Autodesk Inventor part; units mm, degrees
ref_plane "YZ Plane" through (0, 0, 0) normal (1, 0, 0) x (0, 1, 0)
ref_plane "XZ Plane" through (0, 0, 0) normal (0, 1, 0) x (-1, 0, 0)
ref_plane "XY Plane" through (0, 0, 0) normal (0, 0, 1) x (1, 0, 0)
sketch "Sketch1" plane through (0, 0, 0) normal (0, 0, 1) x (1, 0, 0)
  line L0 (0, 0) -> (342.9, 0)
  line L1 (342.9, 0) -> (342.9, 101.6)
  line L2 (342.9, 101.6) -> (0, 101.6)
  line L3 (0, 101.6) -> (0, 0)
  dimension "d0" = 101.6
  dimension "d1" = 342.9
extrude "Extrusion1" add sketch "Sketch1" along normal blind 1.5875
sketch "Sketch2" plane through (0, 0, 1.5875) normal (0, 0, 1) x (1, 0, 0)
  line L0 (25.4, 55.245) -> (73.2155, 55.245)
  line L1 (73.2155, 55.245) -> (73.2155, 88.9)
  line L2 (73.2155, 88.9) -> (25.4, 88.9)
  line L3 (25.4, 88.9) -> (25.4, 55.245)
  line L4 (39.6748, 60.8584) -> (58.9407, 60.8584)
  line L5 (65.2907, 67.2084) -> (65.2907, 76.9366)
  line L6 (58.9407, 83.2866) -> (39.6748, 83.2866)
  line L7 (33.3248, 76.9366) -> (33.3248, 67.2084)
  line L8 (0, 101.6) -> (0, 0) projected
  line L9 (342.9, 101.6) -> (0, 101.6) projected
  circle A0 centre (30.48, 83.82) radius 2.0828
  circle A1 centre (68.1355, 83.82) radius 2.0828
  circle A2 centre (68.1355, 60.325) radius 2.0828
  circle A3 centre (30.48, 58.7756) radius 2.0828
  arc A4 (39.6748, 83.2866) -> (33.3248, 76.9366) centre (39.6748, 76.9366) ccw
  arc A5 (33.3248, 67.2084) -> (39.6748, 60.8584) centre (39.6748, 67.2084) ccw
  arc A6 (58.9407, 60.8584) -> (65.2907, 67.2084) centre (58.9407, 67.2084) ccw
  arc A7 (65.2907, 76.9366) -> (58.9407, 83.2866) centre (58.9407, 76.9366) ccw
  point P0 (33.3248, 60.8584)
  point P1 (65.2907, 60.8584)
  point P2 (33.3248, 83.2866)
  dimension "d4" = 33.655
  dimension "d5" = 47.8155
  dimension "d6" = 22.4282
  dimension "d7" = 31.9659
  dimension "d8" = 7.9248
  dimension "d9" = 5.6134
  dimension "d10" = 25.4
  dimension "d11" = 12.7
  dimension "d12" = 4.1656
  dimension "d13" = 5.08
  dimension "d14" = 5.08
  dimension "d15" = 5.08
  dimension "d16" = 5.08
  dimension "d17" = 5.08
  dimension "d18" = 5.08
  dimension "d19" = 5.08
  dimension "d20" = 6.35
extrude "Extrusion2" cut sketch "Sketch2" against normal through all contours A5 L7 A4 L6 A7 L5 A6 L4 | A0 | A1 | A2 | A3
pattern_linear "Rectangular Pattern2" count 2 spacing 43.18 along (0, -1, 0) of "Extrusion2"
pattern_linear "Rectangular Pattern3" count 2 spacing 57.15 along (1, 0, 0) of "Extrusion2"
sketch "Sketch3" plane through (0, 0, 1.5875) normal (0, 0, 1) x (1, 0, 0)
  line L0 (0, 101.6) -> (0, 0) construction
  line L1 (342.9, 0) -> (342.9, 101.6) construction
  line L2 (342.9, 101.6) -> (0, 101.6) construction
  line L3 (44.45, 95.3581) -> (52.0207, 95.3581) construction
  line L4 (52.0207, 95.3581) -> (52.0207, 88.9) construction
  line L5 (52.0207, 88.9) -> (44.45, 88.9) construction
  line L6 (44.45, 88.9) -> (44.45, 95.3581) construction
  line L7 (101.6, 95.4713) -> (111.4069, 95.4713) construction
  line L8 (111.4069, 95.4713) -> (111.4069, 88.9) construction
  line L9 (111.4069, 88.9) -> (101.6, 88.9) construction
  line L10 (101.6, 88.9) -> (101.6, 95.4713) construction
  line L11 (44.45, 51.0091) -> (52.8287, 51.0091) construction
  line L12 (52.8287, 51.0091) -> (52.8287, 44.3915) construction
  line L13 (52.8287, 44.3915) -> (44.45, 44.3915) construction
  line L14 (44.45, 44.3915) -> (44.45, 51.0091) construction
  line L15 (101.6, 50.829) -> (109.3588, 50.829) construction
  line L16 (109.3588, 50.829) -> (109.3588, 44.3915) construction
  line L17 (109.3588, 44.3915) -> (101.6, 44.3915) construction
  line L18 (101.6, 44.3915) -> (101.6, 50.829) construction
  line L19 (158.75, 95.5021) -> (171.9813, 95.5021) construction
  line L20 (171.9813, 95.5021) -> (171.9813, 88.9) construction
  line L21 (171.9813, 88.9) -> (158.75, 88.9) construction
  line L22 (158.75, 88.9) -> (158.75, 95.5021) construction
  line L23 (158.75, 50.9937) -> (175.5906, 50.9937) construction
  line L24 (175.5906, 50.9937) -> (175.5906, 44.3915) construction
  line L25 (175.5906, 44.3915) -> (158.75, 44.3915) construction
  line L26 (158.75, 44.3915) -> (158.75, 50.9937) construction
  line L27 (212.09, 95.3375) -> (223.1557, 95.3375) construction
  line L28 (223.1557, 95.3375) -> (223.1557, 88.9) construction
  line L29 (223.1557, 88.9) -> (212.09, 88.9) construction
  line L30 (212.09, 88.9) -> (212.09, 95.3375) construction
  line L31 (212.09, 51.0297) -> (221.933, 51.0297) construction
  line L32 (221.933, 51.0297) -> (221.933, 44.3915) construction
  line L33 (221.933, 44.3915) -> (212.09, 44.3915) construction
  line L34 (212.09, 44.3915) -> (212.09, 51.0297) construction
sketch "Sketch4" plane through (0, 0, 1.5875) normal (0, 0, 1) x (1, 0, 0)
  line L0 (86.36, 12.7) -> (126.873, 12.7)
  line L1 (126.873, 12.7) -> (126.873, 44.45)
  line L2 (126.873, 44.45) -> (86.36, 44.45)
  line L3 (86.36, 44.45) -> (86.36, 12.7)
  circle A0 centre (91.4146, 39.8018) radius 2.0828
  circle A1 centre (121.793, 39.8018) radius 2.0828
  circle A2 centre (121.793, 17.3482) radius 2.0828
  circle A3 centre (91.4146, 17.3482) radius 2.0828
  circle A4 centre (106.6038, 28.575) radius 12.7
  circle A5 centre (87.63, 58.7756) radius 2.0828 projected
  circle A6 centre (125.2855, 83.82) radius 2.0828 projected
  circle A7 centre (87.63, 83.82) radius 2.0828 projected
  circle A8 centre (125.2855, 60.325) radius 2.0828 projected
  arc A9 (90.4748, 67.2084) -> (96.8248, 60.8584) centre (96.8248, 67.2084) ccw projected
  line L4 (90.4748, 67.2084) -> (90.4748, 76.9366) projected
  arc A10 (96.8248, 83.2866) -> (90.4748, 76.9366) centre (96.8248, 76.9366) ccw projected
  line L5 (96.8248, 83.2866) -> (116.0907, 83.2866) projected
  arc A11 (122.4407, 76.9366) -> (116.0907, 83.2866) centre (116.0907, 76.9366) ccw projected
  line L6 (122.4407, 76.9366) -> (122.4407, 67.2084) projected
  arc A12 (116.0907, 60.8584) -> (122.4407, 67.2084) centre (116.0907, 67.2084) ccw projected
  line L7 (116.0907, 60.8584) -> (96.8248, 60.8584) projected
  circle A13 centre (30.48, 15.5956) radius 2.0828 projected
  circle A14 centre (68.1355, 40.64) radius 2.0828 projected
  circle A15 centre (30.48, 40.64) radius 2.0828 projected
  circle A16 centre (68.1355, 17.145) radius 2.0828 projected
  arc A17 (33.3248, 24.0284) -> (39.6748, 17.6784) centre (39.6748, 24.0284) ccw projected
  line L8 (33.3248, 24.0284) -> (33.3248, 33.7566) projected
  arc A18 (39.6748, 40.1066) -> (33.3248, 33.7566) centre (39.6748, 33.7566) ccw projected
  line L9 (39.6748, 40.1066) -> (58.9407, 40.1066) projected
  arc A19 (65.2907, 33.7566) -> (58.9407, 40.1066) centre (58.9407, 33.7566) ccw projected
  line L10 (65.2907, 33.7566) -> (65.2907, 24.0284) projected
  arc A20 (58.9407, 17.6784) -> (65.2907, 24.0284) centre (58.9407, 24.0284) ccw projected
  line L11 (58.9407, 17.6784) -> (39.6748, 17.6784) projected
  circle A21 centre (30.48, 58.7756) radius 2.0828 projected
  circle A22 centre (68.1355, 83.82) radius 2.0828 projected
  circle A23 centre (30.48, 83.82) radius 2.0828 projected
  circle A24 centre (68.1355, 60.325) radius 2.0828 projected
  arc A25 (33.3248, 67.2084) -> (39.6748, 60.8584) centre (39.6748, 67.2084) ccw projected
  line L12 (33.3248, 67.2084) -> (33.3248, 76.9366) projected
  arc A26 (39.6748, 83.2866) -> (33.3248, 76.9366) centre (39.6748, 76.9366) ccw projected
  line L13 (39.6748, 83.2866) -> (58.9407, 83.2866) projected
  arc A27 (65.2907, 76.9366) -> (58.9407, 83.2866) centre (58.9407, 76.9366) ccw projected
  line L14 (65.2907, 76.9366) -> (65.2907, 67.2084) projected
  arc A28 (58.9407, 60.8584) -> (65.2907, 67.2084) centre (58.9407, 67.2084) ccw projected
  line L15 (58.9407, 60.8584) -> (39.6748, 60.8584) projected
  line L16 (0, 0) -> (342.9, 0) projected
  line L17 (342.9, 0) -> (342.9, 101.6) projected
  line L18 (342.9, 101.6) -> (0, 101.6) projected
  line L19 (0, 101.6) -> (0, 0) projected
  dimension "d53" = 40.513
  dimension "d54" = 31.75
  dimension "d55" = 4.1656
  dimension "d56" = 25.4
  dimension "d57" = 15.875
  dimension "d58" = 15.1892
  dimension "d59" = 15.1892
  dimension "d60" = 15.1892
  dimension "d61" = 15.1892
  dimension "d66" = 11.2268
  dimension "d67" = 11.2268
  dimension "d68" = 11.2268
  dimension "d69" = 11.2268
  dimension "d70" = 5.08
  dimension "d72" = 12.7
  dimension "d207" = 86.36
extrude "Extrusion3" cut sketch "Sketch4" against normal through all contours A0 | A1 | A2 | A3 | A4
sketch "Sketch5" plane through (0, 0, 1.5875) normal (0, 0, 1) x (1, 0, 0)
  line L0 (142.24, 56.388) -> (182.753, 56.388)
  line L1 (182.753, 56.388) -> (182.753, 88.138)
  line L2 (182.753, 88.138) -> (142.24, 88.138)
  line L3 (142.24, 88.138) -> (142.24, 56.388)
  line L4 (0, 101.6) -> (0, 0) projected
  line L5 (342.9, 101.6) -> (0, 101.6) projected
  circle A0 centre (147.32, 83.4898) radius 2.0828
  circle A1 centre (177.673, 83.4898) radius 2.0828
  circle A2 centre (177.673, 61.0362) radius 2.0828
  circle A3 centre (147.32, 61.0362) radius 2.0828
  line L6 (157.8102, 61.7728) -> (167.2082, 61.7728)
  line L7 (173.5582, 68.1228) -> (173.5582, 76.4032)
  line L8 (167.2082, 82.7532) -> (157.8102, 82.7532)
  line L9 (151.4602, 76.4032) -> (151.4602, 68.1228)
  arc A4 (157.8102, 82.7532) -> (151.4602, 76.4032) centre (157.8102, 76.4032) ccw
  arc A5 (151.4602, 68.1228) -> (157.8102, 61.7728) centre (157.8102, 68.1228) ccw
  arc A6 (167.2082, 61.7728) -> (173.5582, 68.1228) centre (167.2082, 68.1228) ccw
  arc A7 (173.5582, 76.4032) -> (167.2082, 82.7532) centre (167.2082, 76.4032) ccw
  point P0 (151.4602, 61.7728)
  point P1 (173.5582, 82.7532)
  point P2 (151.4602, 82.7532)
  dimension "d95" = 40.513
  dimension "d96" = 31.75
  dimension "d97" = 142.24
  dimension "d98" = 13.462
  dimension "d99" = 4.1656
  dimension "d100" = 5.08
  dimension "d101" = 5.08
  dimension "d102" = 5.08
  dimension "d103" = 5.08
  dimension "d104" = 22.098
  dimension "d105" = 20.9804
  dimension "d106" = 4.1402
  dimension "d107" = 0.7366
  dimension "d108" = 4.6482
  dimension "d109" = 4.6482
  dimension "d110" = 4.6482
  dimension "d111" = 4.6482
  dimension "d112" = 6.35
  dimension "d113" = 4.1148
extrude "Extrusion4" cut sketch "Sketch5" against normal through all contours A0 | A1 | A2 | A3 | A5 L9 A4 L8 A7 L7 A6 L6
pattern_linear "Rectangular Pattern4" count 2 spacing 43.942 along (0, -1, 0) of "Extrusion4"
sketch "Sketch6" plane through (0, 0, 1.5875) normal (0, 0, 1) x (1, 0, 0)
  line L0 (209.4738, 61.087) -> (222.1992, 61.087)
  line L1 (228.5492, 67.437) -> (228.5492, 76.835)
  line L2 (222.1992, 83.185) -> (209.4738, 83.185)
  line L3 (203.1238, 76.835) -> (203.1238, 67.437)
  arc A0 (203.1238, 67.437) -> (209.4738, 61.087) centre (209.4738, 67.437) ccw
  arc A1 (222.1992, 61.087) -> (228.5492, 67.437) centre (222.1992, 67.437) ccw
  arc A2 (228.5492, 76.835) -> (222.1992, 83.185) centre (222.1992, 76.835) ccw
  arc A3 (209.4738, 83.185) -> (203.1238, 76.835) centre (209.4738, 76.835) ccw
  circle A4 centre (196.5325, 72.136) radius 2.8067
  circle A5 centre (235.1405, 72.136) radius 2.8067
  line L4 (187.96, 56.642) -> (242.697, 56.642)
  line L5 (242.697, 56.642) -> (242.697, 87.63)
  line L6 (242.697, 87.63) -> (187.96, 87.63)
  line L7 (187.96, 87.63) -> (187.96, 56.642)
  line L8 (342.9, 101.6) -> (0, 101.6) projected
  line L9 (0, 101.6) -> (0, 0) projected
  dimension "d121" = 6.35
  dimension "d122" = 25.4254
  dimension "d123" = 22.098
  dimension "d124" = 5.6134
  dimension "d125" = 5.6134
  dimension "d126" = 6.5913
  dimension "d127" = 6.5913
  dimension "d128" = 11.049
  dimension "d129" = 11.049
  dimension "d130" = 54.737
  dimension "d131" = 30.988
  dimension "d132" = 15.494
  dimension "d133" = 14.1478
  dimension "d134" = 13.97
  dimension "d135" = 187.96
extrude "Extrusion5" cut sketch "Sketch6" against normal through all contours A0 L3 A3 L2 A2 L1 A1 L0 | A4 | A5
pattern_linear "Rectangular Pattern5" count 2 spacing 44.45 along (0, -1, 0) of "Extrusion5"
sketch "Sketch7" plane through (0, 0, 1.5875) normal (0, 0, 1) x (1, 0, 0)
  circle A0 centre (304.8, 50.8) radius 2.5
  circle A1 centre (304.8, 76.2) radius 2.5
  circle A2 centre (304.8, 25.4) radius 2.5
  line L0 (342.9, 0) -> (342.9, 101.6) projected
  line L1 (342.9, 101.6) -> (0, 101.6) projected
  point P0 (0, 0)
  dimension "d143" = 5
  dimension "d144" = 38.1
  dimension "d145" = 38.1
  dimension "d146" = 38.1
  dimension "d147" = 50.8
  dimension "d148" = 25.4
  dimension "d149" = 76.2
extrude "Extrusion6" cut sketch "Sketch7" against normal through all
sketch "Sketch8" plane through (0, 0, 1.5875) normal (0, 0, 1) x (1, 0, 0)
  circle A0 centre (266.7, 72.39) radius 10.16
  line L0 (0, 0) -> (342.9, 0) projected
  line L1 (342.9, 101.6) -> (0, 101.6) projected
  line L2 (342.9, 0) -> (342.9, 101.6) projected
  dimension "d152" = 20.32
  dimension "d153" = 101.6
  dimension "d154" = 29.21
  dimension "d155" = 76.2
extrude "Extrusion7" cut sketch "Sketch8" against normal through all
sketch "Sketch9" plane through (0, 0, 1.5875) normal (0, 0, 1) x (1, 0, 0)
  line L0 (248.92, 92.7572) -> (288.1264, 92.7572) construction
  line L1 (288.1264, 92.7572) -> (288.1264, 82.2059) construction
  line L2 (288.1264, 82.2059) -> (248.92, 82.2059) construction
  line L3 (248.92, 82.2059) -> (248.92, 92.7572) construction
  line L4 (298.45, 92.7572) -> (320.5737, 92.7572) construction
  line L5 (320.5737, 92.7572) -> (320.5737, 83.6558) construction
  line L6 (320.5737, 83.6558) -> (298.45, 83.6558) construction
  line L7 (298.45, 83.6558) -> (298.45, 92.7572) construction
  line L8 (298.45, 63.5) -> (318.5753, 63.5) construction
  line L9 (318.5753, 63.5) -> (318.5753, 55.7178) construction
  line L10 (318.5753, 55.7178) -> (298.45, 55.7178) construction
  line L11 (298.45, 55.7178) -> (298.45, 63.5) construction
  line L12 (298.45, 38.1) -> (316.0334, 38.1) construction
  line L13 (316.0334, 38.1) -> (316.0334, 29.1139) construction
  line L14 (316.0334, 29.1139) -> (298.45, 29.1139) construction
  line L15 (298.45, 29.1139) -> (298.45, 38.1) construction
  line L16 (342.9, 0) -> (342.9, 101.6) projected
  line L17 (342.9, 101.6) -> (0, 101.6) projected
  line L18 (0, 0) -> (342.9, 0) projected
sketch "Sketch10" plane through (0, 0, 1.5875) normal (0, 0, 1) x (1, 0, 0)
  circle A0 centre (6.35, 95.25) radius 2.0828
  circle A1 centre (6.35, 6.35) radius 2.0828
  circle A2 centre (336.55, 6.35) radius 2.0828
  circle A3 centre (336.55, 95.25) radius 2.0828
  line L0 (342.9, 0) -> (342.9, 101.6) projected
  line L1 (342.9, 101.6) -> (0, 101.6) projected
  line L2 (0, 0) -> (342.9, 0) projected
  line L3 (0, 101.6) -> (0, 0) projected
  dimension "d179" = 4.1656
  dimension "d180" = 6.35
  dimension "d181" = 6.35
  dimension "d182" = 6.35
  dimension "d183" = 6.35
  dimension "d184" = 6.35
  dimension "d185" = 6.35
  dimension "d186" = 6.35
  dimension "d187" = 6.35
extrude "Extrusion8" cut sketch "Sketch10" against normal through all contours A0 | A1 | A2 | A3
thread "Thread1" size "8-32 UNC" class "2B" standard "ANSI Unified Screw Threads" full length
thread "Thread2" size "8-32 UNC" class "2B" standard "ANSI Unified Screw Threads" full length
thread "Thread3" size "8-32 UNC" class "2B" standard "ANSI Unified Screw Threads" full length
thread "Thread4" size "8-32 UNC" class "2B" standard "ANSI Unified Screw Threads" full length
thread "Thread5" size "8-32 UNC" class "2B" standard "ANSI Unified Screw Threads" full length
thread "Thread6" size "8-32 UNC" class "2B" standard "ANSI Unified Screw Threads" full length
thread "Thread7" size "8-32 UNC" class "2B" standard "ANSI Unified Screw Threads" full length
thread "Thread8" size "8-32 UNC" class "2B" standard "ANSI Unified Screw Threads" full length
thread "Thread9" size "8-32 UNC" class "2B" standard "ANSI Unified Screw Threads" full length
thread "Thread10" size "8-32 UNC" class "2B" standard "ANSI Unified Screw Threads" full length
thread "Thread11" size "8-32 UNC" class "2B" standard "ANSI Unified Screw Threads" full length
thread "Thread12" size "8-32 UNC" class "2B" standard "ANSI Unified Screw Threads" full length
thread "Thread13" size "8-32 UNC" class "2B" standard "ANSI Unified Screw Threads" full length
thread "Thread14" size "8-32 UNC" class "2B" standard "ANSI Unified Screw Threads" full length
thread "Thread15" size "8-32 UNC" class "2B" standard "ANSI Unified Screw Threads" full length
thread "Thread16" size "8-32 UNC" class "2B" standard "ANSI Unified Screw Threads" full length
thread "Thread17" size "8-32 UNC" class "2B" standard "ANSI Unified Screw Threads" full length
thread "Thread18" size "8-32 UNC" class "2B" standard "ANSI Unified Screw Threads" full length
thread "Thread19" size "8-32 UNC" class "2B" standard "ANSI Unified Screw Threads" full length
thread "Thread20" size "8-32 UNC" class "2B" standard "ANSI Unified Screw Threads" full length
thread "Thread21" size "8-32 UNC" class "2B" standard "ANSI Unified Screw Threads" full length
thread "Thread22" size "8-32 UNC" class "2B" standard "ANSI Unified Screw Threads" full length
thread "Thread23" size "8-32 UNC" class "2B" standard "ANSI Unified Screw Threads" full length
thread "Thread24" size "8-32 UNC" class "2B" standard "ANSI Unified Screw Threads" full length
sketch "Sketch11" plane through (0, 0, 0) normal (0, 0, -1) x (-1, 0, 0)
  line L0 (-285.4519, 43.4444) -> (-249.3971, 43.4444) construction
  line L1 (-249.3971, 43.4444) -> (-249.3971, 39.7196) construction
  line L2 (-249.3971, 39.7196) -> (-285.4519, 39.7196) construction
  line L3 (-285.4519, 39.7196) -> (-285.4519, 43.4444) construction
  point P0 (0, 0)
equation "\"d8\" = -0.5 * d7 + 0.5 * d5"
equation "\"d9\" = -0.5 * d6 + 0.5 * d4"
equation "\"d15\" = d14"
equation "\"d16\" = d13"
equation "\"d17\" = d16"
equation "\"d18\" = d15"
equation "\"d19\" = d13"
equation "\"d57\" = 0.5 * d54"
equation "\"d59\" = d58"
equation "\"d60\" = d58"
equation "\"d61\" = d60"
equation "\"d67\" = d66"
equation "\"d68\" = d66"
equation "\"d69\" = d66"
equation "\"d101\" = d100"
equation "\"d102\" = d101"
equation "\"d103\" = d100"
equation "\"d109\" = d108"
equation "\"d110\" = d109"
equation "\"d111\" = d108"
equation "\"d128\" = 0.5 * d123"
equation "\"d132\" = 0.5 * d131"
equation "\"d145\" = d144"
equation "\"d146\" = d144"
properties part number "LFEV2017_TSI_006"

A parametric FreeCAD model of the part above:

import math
import FreeCAD as App
import Part
import Sketcher

V = App.Vector
Q = App.Units.Quantity


def add_polygon(sketch, points):
    """Adds a closed chain of lines whose ends are joined by coincident constraints."""
    first, n = sketch.GeometryCount, len(points)
    for a, b in zip(points, points[1:] + points[:1]):
        sketch.addGeometry(Part.LineSegment(App.Vector(*a, 0), App.Vector(*b, 0)), False)
    for i in range(n):
        sketch.addConstraint(Sketcher.Constraint("Coincident", first + i, 2, first + (i + 1) % n, 1))

doc = App.newDocument("Part")
body = doc.addObject("PartDesign::Body", "Body")

# Sketch on XY plane
sketch1 = body.newObject("Sketcher::SketchObject", "Sketch")
sketch1.AttachmentSupport = (doc.getObject("XY_Plane"), [""])
sketch1.MapMode = "FlatFace"
add_polygon(sketch1, [(0, 102), (0, 0), (343, 0), (343, 102)])  # lines 0-3
sketch1.addConstraint([
    Sketcher.Constraint("Vertical", 0),
    Sketcher.Constraint("Horizontal", 1),
    Sketcher.Constraint("Vertical", 2),
    Sketcher.Constraint("Horizontal", 3),
    Sketcher.Constraint("Coincident", 0, 2, -1, 1),
    Sketcher.Constraint("DistanceY", 0, 2, 0, 1, Q("4 in")),
    Sketcher.Constraint("DistanceX", 1, 1, 1, 2, Q("13.5 in")),
])
pad1 = body.newObject("PartDesign::Pad", "Pad")
pad1.Profile = sketch1
pad1.Length = Q("0.0625 in")

# Sketch on XY plane
sketch2 = body.newObject("Sketcher::SketchObject", "Sketch001")
sketch2.AttachmentSupport = (doc.getObject("XY_Plane"), [""])
sketch2.MapMode = "FlatFace"
sketch2.AttachmentOffset = App.Placement(V(0, 0, 0.0625 * 25.4), App.Rotation())
sketch2.addGeometry([
    Part.ArcOfCircle(Part.Circle(V(39.7, 67.2, 0), V(0, 0, 1), 6.3), math.radians(180), math.radians(270)),  # 0
    Part.LineSegment(V(39.7, 60.9, 0), V(58.9, 60.9, 0)),  # 1
    Part.ArcOfCircle(Part.Circle(V(58.9, 67.2, 0), V(0, 0, 1), 6.3), math.radians(-90), math.radians(0)),  # 2
    Part.LineSegment(V(65.3, 67.2, 0), V(65.3, 76.9, 0)),  # 3
    Part.ArcOfCircle(Part.Circle(V(58.9, 76.9, 0), V(0, 0, 1), 6.4), math.radians(0), math.radians(90)),  # 4
    Part.LineSegment(V(58.9, 83.3, 0), V(39.7, 83.3, 0)),  # 5
    Part.ArcOfCircle(Part.Circle(V(39.7, 76.9, 0), V(0, 0, 1), 6.4), math.radians(90), math.radians(180)),  # 6
    Part.LineSegment(V(33.3, 76.9, 0), V(33.3, 67.2, 0)),  # 7
    Part.Circle(V(30.5, 83.8, 0), V(0, 0, 1), 2.1),  # 8
    Part.Circle(V(68.1, 83.8, 0), V(0, 0, 1), 2.1),  # 9
    Part.Circle(V(68.1, 60.3, 0), V(0, 0, 1), 2.1),  # 10
    Part.Circle(V(30.5, 58.8, 0), V(0, 0, 1), 2.1),  # 11
], False)
sketch2.addConstraint([
    Sketcher.Constraint("Tangent", 0, 2, 1, 1),
    Sketcher.Constraint("Tangent", 1, 2, 2, 1),
    Sketcher.Constraint("Tangent", 2, 2, 3, 1),
    Sketcher.Constraint("Tangent", 3, 2, 4, 1),
    Sketcher.Constraint("Tangent", 4, 2, 5, 1),
    Sketcher.Constraint("Tangent", 5, 2, 6, 1),
    Sketcher.Constraint("Tangent", 6, 2, 7, 1),
    Sketcher.Constraint("Tangent", 7, 2, 0, 1),
    Sketcher.Constraint("Horizontal", 1),
    Sketcher.Constraint("Vertical", 3),
    Sketcher.Constraint("Horizontal", 5),
    Sketcher.Constraint("Vertical", 7),
    Sketcher.Constraint("Equal", 0, 2),
    Sketcher.Constraint("Equal", 2, 4),
    Sketcher.Constraint("Equal", 4, 6),
    Sketcher.Constraint("Equal", 8, 9),
    Sketcher.Constraint("Equal", 9, 10),
    Sketcher.Constraint("Equal", 10, 11),
    Sketcher.Constraint("Horizontal", 8, 3, 9, 3),
    Sketcher.Constraint("Vertical", 9, 3, 10, 3),
    Sketcher.Constraint("Vertical", 8, 3, 11, 3),
    Sketcher.Constraint("Radius", 0, Q("0.25 in")),
    Sketcher.Constraint("Diameter", 8, Q("0.164 in")),
    Sketcher.Constraint("DistanceX", -1, 1, 8, 3, Q("1.2 in")),
    Sketcher.Constraint("DistanceY", -1, 1, 8, 3, Q("3.3 in")),
    Sketcher.Constraint("DistanceY", 3, 1, 3, 2, Q("0.383 in")),
    Sketcher.Constraint("DistanceX", 1, 1, 1, 2, Q("0.7585 in")),
    Sketcher.Constraint("DistanceX", -1, 1, 0, 3, Q("1.562 in")),
    Sketcher.Constraint("DistanceY", -1, 1, 0, 3, Q("2.646 in")),
    Sketcher.Constraint("DistanceY", -1, 1, 10, 3, Q("2.375 in")),
    Sketcher.Constraint("DistanceY", -1, 1, 11, 3, Q("2.314 in")),
    Sketcher.Constraint("DistanceX", 4, 3, 9, 3, Q("0.362 in")),
])
pocket1 = body.newObject("PartDesign::Pocket", "Pocket")
pocket1.Profile = sketch2
pocket1.Type = "ThroughAll"
doc.recompute()

linearpattern = body.newObject("PartDesign::LinearPattern", "LinearPattern")
linearpattern.Originals = [pocket1]
linearpattern.Direction = (doc.getObject("Y_Axis"), [""])
linearpattern.Mode = "offset"
linearpattern.Offset = Q("1.7 in")
linearpattern.Occurrences = 2
linearpattern.Reversed = True
body.Tip = linearpattern
doc.recompute()

linearpattern2 = body.newObject("PartDesign::LinearPattern", "LinearPattern001")
linearpattern2.Originals = [pocket1]
linearpattern2.Direction = (doc.getObject("X_Axis"), [""])
linearpattern2.Mode = "offset"
linearpattern2.Offset = Q("2.25 in")
linearpattern2.Occurrences = 2
body.Tip = linearpattern2

# Sketch on XY plane
sketch3 = body.newObject("Sketcher::SketchObject", "Sketch002")
sketch3.AttachmentSupport = (doc.getObject("XY_Plane"), [""])
sketch3.MapMode = "FlatFace"
sketch3.AttachmentOffset = App.Placement(V(0, 0, 0.0625 * 25.4), App.Rotation())
sketch3.addGeometry([
    Part.Circle(V(91.4, 39.8, 0), V(0, 0, 1), 2.1),  # 0
    Part.Circle(V(121.8, 39.8, 0), V(0, 0, 1), 2.1),  # 1
    Part.Circle(V(121.8, 17.3, 0), V(0, 0, 1), 2.1),  # 2
    Part.Circle(V(91.4, 17.3, 0), V(0, 0, 1), 2.1),  # 3
    Part.Circle(V(106.6, 28.6, 0), V(0, 0, 1), 12.7),  # 4
], False)
sketch3.addConstraint([
    Sketcher.Constraint("Equal", 0, 1),
    Sketcher.Constraint("Equal", 1, 2),
    Sketcher.Constraint("Equal", 2, 3),
    Sketcher.Constraint("Horizontal", 0, 3, 1, 3),
    Sketcher.Constraint("Horizontal", 2, 3, 3, 3),
    Sketcher.Constraint("Vertical", 1, 3, 2, 3),
    Sketcher.Constraint("Vertical", 0, 3, 3, 3),
    Sketcher.Constraint("Diameter", 4, Q("1 in")),
    Sketcher.Constraint("Diameter", 0, Q("0.164 in")),
    Sketcher.Constraint("DistanceX", 4, 3, 1, 3, Q("0.598 in")),
    Sketcher.Constraint("DistanceY", 4, 3, 1, 3, Q("0.442 in")),
    Sketcher.Constraint("DistanceY", 2, 3, 4, 3, Q("0.442 in")),
    Sketcher.Constraint("DistanceX", 0, 3, 4, 3, Q("0.598 in")),
    Sketcher.Constraint("DistanceX", -1, 1, 0, 3, Q("3.599 in")),
    Sketcher.Constraint("DistanceY", -1, 1, 0, 3, Q("1.567 in")),
])
pocket2 = body.newObject("PartDesign::Pocket", "Pocket001")
pocket2.Profile = sketch3
pocket2.Type = "ThroughAll"

# Sketch on XY plane
sketch4 = body.newObject("Sketcher::SketchObject", "Sketch003")
sketch4.AttachmentSupport = (doc.getObject("XY_Plane"), [""])
sketch4.MapMode = "FlatFace"
sketch4.AttachmentOffset = App.Placement(V(0, 0, 0.0625 * 25.4), App.Rotation())
sketch4.addGeometry([
    Part.Circle(V(147.3, 83.5, 0), V(0, 0, 1), 2.1),  # 0
    Part.Circle(V(177.7, 83.5, 0), V(0, 0, 1), 2.1),  # 1
    Part.Circle(V(177.7, 61, 0), V(0, 0, 1), 2.1),  # 2
    Part.Circle(V(147.3, 61, 0), V(0, 0, 1), 2.1),  # 3
    Part.ArcOfCircle(Part.Circle(V(157.8, 68.1, 0), V(0, 0, 1), 6.4), math.radians(180), math.radians(270)),  # 4
    Part.LineSegment(V(157.8, 61.8, 0), V(167.2, 61.8, 0)),  # 5
    Part.ArcOfCircle(Part.Circle(V(167.2, 68.1, 0), V(0, 0, 1), 6.4), math.radians(-90), math.radians(0)),  # 6
    Part.LineSegment(V(173.6, 68.1, 0), V(173.6, 76.4, 0)),  # 7
    Part.ArcOfCircle(Part.Circle(V(167.2, 76.4, 0), V(0, 0, 1), 6.3), math.radians(0), math.radians(90)),  # 8
    Part.LineSegment(V(167.2, 82.8, 0), V(157.8, 82.8, 0)),  # 9
    Part.ArcOfCircle(Part.Circle(V(157.8, 76.4, 0), V(0, 0, 1), 6.4), math.radians(90), math.radians(180)),  # 10
    Part.LineSegment(V(151.5, 76.4, 0), V(151.5, 68.1, 0)),  # 11
], False)
sketch4.addConstraint([
    Sketcher.Constraint("Tangent", 4, 2, 5, 1),
    Sketcher.Constraint("Tangent", 5, 2, 6, 1),
    Sketcher.Constraint("Tangent", 6, 2, 7, 1),
    Sketcher.Constraint("Tangent", 7, 2, 8, 1),
    Sketcher.Constraint("Tangent", 8, 2, 9, 1),
    Sketcher.Constraint("Tangent", 9, 2, 10, 1),
    Sketcher.Constraint("Tangent", 10, 2, 11, 1),
    Sketcher.Constraint("Tangent", 11, 2, 4, 1),
    Sketcher.Constraint("Horizontal", 5),
    Sketcher.Constraint("Vertical", 7),
    Sketcher.Constraint("Horizontal", 9),
    Sketcher.Constraint("Vertical", 11),
    Sketcher.Constraint("Equal", 0, 1),
    Sketcher.Constraint("Equal", 1, 2),
    Sketcher.Constraint("Equal", 2, 3),
    Sketcher.Constraint("Equal", 4, 6),
    Sketcher.Constraint("Equal", 6, 8),
    Sketcher.Constraint("Equal", 8, 10),
    Sketcher.Constraint("Horizontal", 0, 3, 1, 3),
    Sketcher.Constraint("Horizontal", 2, 3, 3, 3),
    Sketcher.Constraint("Vertical", 1, 3, 2, 3),
    Sketcher.Constraint("Vertical", 0, 3, 3, 3),
    Sketcher.Constraint("Radius", 4, Q("0.25 in")),
    Sketcher.Constraint("Diameter", 0, Q("0.164 in")),
    Sketcher.Constraint("DistanceY", 3, 3, 4, 2, Q("0.029 in")),
    Sketcher.Constraint("DistanceX", 6, 2, 2, 3, Q("0.162 in")),
    Sketcher.Constraint("DistanceY", 8, 2, 1, 3, Q("0.029 in")),
    Sketcher.Constraint("DistanceX", 0, 3, 10, 2, Q("0.163 in")),
    Sketcher.Constraint("DistanceX", 5, 1, 5, 2, Q("0.37 in")),
    Sketcher.Constraint("DistanceX", -1, 1, 0, 3, Q("5.8 in")),
    Sketcher.Constraint("DistanceY", 7, 1, 7, 2, Q("0.326 in")),
    Sketcher.Constraint("DistanceY", -1, 1, 0, 3, Q("3.287 in")),
])
pocket3 = body.newObject("PartDesign::Pocket", "Pocket002")
pocket3.Profile = sketch4
pocket3.Type = "ThroughAll"
doc.recompute()

linearpattern3 = body.newObject("PartDesign::LinearPattern", "LinearPattern002")
linearpattern3.Originals = [pocket3]
linearpattern3.Direction = (doc.getObject("Y_Axis"), [""])
linearpattern3.Mode = "offset"
linearpattern3.Offset = Q("1.73 in")
linearpattern3.Occurrences = 2
linearpattern3.Reversed = True
body.Tip = linearpattern3

# Sketch on XY plane
sketch5 = body.newObject("Sketcher::SketchObject", "Sketch004")
sketch5.AttachmentSupport = (doc.getObject("XY_Plane"), [""])
sketch5.MapMode = "FlatFace"
sketch5.AttachmentOffset = App.Placement(V(0, 0, 0.0625 * 25.4), App.Rotation())
sketch5.addGeometry([
    Part.ArcOfCircle(Part.Circle(V(209.5, 67.4, 0), V(0, 0, 1), 6.4), math.radians(180), math.radians(270)),  # 0
    Part.LineSegment(V(209.5, 61.1, 0), V(222.2, 61.1, 0)),  # 1
    Part.ArcOfCircle(Part.Circle(V(222.2, 67.4, 0), V(0, 0, 1), 6.3), math.radians(-90), math.radians(0)),  # 2
    Part.LineSegment(V(228.5, 67.4, 0), V(228.5, 76.8, 0)),  # 3
    Part.ArcOfCircle(Part.Circle(V(222.2, 76.8, 0), V(0, 0, 1), 6.4), math.radians(0), math.radians(90)),  # 4
    Part.LineSegment(V(222.2, 83.2, 0), V(209.5, 83.2, 0)),  # 5
    Part.ArcOfCircle(Part.Circle(V(209.5, 76.8, 0), V(0, 0, 1), 6.4), math.radians(90), math.radians(180)),  # 6
    Part.LineSegment(V(203.1, 76.8, 0), V(203.1, 67.4, 0)),  # 7
    Part.Circle(V(196.5, 72.1, 0), V(0, 0, 1), 2.8),  # 8
    Part.Circle(V(235.1, 72.1, 0), V(0, 0, 1), 2.8),  # 9
], False)
sketch5.addConstraint([
    Sketcher.Constraint("Tangent", 0, 2, 1, 1),
    Sketcher.Constraint("Tangent", 1, 2, 2, 1),
    Sketcher.Constraint("Tangent", 2, 2, 3, 1),
    Sketcher.Constraint("Tangent", 3, 2, 4, 1),
    Sketcher.Constraint("Tangent", 4, 2, 5, 1),
    Sketcher.Constraint("Tangent", 5, 2, 6, 1),
    Sketcher.Constraint("Tangent", 6, 2, 7, 1),
    Sketcher.Constraint("Tangent", 7, 2, 0, 1),
    Sketcher.Constraint("Horizontal", 1),
    Sketcher.Constraint("Vertical", 3),
    Sketcher.Constraint("Horizontal", 5),
    Sketcher.Constraint("Vertical", 7),
    Sketcher.Constraint("Equal", 0, 2),
    Sketcher.Constraint("Equal", 2, 4),
    Sketcher.Constraint("Equal", 4, 6),
    Sketcher.Constraint("Equal", 8, 9),
    Sketcher.Constraint("Horizontal", 8, 3, 9, 3),
    Sketcher.Constraint("Radius", 0, Q("0.25 in")),
    Sketcher.Constraint("Diameter", 8, Q("0.221 in")),
    Sketcher.Constraint("DistanceY", 0, 2, 8, 3, Q("0.435 in")),
    Sketcher.Constraint("DistanceY", 8, 3, 5, 2, Q("0.435 in")),
    Sketcher.Constraint("DistanceX", 2, 2, 9, 3, Q("0.2595 in")),
    Sketcher.Constraint("DistanceX", 8, 3, 6, 2, Q("0.2595 in")),
    Sketcher.Constraint("DistanceX", 1, 1, 1, 2, Q("0.501 in")),
    Sketcher.Constraint("DistanceY", -1, 1, 8, 3, Q("2.84 in")),
    Sketcher.Constraint("DistanceX", -1, 1, 0, 3, Q("8.247 in")),
])
pocket4 = body.newObject("PartDesign::Pocket", "Pocket003")
pocket4.Profile = sketch5
pocket4.Type = "ThroughAll"
doc.recompute()

linearpattern4 = body.newObject("PartDesign::LinearPattern", "LinearPattern003")
linearpattern4.Originals = [pocket4]
linearpattern4.Direction = (doc.getObject("Y_Axis"), [""])
linearpattern4.Mode = "offset"
linearpattern4.Offset = Q("1.75 in")
linearpattern4.Occurrences = 2
linearpattern4.Reversed = True
body.Tip = linearpattern4

# Sketch on XY plane
sketch6 = body.newObject("Sketcher::SketchObject", "Sketch005")
sketch6.AttachmentSupport = (doc.getObject("XY_Plane"), [""])
sketch6.MapMode = "FlatFace"
sketch6.AttachmentOffset = App.Placement(V(0, 0, 0.0625 * 25.4), App.Rotation())
sketch6.addGeometry([
    Part.Circle(V(304.8, 50.8, 0), V(0, 0, 1), 2.5),
    Part.Circle(V(304.8, 76.2, 0), V(0, 0, 1), 2.5),
    Part.Circle(V(304.8, 25.4, 0), V(0, 0, 1), 2.5),
], False)
sketch6.addConstraint([
    Sketcher.Constraint("Equal", 0, 1),
    Sketcher.Constraint("Equal", 1, 2),
    Sketcher.Constraint("Vertical", 0, 3, 1, 3),
    Sketcher.Constraint("Vertical", 1, 3, 2, 3),
    Sketcher.Constraint("DistanceY", -1, 1, 0, 3, Q("2 in")),
    Sketcher.Constraint("DistanceY", -1, 1, 1, 3, Q("3 in")),
    Sketcher.Constraint("DistanceY", -1, 1, 2, 3, Q("1 in")),
    Sketcher.Constraint("Diameter", 0, Q("5 mm")),
    Sketcher.Constraint("DistanceX", -1, 1, 0, 3, Q("12 in")),
])
pocket5 = body.newObject("PartDesign::Pocket", "Pocket004")
pocket5.Profile = sketch6
pocket5.Type = "ThroughAll"

# Sketch on XY plane
sketch7 = body.newObject("Sketcher::SketchObject", "Sketch006")
sketch7.AttachmentSupport = (doc.getObject("XY_Plane"), [""])
sketch7.MapMode = "FlatFace"
sketch7.AttachmentOffset = App.Placement(V(0, 0, 0.0625 * 25.4), App.Rotation())
sketch7.addGeometry(Part.Circle(V(267, 72, 0), V(0, 0, 1), 10), False)
sketch7.addConstraint([
    Sketcher.Constraint("Diameter", 0, Q("0.8 in")),
    Sketcher.Constraint("DistanceX", -1, 1, 0, 3, Q("10.5 in")),
    Sketcher.Constraint("DistanceY", -1, 1, 0, 3, Q("2.85 in")),
])
pocket6 = body.newObject("PartDesign::Pocket", "Pocket005")
pocket6.Profile = sketch7
pocket6.Type = "ThroughAll"

# Sketch on XY plane
sketch8 = body.newObject("Sketcher::SketchObject", "Sketch007")
sketch8.AttachmentSupport = (doc.getObject("XY_Plane"), [""])
sketch8.MapMode = "FlatFace"
sketch8.AttachmentOffset = App.Placement(V(0, 0, 0.0625 * 25.4), App.Rotation())
sketch8.addGeometry([
    Part.Circle(V(6.3, 95.2, 0), V(0, 0, 1), 2.1),
    Part.Circle(V(6.3, 6.3, 0), V(0, 0, 1), 2.1),
    Part.Circle(V(336.6, 6.3, 0), V(0, 0, 1), 2.1),
    Part.Circle(V(336.6, 95.2, 0), V(0, 0, 1), 2.1),
], False)
sketch8.addConstraint([
    Sketcher.Constraint("Equal", 0, 1),
    Sketcher.Constraint("Equal", 1, 2),
    Sketcher.Constraint("Equal", 2, 3),
    Sketcher.Constraint("Horizontal", 1, 3, 2, 3),
    Sketcher.Constraint("Horizontal", 0, 3, 3, 3),
    Sketcher.Constraint("Vertical", 0, 3, 1, 3),
    Sketcher.Constraint("Vertical", 2, 3, 3, 3),
    Sketcher.Constraint("Diameter", 0, Q("0.164 in")),
    Sketcher.Constraint("DistanceX", -1, 1, 0, 3, Q("0.25 in")),
    Sketcher.Constraint("DistanceY", -1, 1, 1, 3, Q("0.25 in")),
    Sketcher.Constraint("DistanceX", 1, 3, 2, 3, Q("13 in")),
    Sketcher.Constraint("DistanceY", 1, 3, 0, 3, Q("3.5 in")),
])
pocket7 = body.newObject("PartDesign::Pocket", "Pocket006")
pocket7.Profile = sketch8
pocket7.Type = "ThroughAll"

doc.recompute()
